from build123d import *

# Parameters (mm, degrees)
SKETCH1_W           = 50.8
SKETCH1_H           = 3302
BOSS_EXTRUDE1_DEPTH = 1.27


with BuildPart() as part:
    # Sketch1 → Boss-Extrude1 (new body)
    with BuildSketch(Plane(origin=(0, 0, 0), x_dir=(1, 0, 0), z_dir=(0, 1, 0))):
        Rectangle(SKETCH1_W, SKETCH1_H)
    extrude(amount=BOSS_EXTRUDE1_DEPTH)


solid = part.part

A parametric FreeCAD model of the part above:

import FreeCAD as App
import Part
import Sketcher
from FreeCAD import Vector
Q = App.Units.Quantity

doc = App.newDocument("Part")
body = doc.addObject("PartDesign::Body", "Body")

# Sketch on XZ plane
sketch1 = body.newObject("Sketcher::SketchObject", "Sketch")
sketch1.AttachmentSupport = (doc.getObject("XZ_Plane"), [""])
sketch1.MapMode = "FlatFace"
sketch1.addGeometry(Part.LineSegment(Vector(-25.4, -1651, 0), Vector(-25.4, 1651, 0)), False)
sketch1.addGeometry(Part.LineSegment(Vector(-25.4, 1651, 0), Vector(25.4, 1651, 0)), False)
sketch1.addGeometry(Part.LineSegment(Vector(25.4, 1651, 0), Vector(25.4, -1651, 0)), False)
sketch1.addGeometry(Part.LineSegment(Vector(25.4, -1651, 0), Vector(-25.4, -1651, 0)), False)
sketch1.addConstraint(Sketcher.Constraint("Coincident", 0, 2, 1, 1))
sketch1.addConstraint(Sketcher.Constraint("Coincident", 1, 2, 2, 1))
sketch1.addConstraint(Sketcher.Constraint("Coincident", 2, 2, 3, 1))
sketch1.addConstraint(Sketcher.Constraint("Coincident", 3, 2, 0, 1))
sketch1.addConstraint(Sketcher.Constraint("Vertical", 0))
sketch1.addConstraint(Sketcher.Constraint("Horizontal", 1))
sketch1.addConstraint(Sketcher.Constraint("Vertical", 2))
sketch1.addConstraint(Sketcher.Constraint("Horizontal", 3))
sketch1.addConstraint(Sketcher.Constraint("Symmetric", 0, 2, 2, 2, -1, 1))
sketch1.addConstraint(Sketcher.Constraint("DistanceX", 1, 1, 1, 2, Q("2 in")))
sketch1.addConstraint(Sketcher.Constraint("DistanceY", 0, 1, 0, 2, Q("130 in")))
pad1 = body.newObject("PartDesign::Pad", "Pad")
pad1.Profile = sketch1
pad1.Length = Q("0.05 in")
pad1.Reversed = True

doc.recompute()
